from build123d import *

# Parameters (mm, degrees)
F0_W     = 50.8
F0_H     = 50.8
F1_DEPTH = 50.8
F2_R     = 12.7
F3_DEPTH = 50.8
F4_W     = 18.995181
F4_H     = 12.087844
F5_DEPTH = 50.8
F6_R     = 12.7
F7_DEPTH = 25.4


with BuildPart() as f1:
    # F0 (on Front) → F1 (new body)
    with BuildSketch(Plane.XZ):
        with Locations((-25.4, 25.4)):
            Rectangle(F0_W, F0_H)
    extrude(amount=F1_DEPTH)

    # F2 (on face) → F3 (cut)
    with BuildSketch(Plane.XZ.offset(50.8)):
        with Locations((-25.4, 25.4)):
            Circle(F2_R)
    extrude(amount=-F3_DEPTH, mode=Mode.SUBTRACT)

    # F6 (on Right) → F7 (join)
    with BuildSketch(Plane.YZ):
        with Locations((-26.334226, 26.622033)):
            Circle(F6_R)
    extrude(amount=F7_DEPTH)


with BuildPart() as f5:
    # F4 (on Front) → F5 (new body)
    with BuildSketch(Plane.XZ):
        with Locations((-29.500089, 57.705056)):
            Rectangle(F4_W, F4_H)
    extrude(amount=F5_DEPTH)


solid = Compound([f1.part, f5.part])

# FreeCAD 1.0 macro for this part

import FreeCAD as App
import Part
import Sketcher
from FreeCAD import Vector
Q = App.Units.Quantity

doc = App.newDocument("Part")
params = doc.addObject("Spreadsheet::Sheet", "Params")
for row, (alias, value) in enumerate([
    ("sketch1_width", "2 in"),
    ("pad1_length", "2 in"),
    ("sketch2_diameter", "1 in"),
    ("pocket1_length", "2 in"),
    ("sketch3_diameter", "1 in"),
    ("pad2_length", "1 in"),
    ("pad3_length", "2 in"),
], start=1):
    params.set(f"A{row}", alias)
    params.set(f"B{row}", "=" + value)
    params.setAlias(f"B{row}", alias)

body = doc.addObject("PartDesign::Body", "Body")

# Sketch on XZ plane
sketch1 = body.newObject("Sketcher::SketchObject", "Sketch")
sketch1.AttachmentSupport = (doc.getObject("XZ_Plane"), [""])
sketch1.MapMode = "FlatFace"
sketch1.addGeometry([
    Part.LineSegment(Vector(-51, 51, 0), Vector(-51, 0, 0)),
    Part.LineSegment(Vector(-51, 0, 0), Vector(0, 0, 0)),
    Part.LineSegment(Vector(0, 0, 0), Vector(0, 51, 0)),
    Part.LineSegment(Vector(0, 51, 0), Vector(-51, 51, 0)),
], False)
sketch1.addConstraint([
    Sketcher.Constraint("Coincident", 0, 2, 1, 1),
    Sketcher.Constraint("Coincident", 1, 2, 2, 1),
    Sketcher.Constraint("Coincident", 2, 2, 3, 1),
    Sketcher.Constraint("Coincident", 3, 2, 0, 1),
    Sketcher.Constraint("Vertical", 0),
    Sketcher.Constraint("Horizontal", 1),
    Sketcher.Constraint("Vertical", 2),
    Sketcher.Constraint("Horizontal", 3),
    Sketcher.Constraint("Coincident", 1, 2, -1, 1),
    Sketcher.Constraint("Equal", 3, 0),
    Sketcher.Constraint("DistanceX", 1, 1, 1, 2, Q("2 in")),
])
sketch1.setExpression("Constraints[10]", "Params.sketch1_width")
pad1 = body.newObject("PartDesign::Pad", "Pad")
pad1.Profile = sketch1
pad1.setExpression("Length", "Params.pad1_length")

# Sketch on XZ plane
sketch2 = body.newObject("Sketcher::SketchObject", "Sketch001")
sketch2.AttachmentSupport = (doc.getObject("XZ_Plane"), [""])
sketch2.MapMode = "FlatFace"
sketch2.AttachmentOffset = App.Placement(Vector(0, 0, 2 * 25.4), App.Rotation())
sketch2.addGeometry(Part.Circle(Vector(-25, 25, 0), Vector(0, 0, 1), 13), False)
sketch2.addConstraint([
    Sketcher.Constraint("Diameter", 0, Q("1 in")),
    Sketcher.Constraint("DistanceX", 0, 3, -1, 1, Q("1 in")),
    Sketcher.Constraint("DistanceY", -1, 1, 0, 3, Q("1 in")),
])
sketch2.setExpression("Constraints[0]", "Params.sketch2_diameter")
pocket1 = body.newObject("PartDesign::Pocket", "Pocket")
pocket1.Profile = sketch2
pocket1.setExpression("Length", "Params.pocket1_length")

# Sketch on YZ plane
sketch3 = body.newObject("Sketcher::SketchObject", "Sketch002")
sketch3.AttachmentSupport = (doc.getObject("YZ_Plane"), [""])
sketch3.MapMode = "FlatFace"
sketch3.addGeometry(Part.Circle(Vector(-26, 27, 0), Vector(0, 0, 1), 13), False)
sketch3.addConstraint([
    Sketcher.Constraint("Diameter", 0, Q("1 in")),
    Sketcher.Constraint("DistanceX", 0, 3, -1, 1, 26.334226),
    Sketcher.Constraint("DistanceY", -1, 1, 0, 3, 26.622033),
])
sketch3.setExpression("Constraints[0]", "Params.sketch3_diameter")
pad2 = body.newObject("PartDesign::Pad", "Pad001")
pad2.Profile = sketch3
pad2.setExpression("Length", "Params.pad2_length")
body2 = doc.addObject("PartDesign::Body", "Body001")

# Sketch on XZ plane
sketch4 = body2.newObject("Sketcher::SketchObject", "Sketch003")
sketch4.AttachmentSupport = (doc.getObject("XZ_Plane001"), [""])
sketch4.MapMode = "FlatFace"
sketch4.addGeometry([
    Part.LineSegment(Vector(-39, 64, 0), Vector(-39, 52, 0)),
    Part.LineSegment(Vector(-39, 52, 0), Vector(-20, 52, 0)),
    Part.LineSegment(Vector(-20, 52, 0), Vector(-20, 64, 0)),
    Part.LineSegment(Vector(-20, 64, 0), Vector(-39, 64, 0)),
], False)
sketch4.addConstraint([
    Sketcher.Constraint("Coincident", 0, 2, 1, 1),
    Sketcher.Constraint("Coincident", 1, 2, 2, 1),
    Sketcher.Constraint("Coincident", 2, 2, 3, 1),
    Sketcher.Constraint("Coincident", 3, 2, 0, 1),
    Sketcher.Constraint("Vertical", 0),
    Sketcher.Constraint("Horizontal", 1),
    Sketcher.Constraint("Vertical", 2),
    Sketcher.Constraint("Horizontal", 3),
    Sketcher.Constraint("DistanceX", 1, 2, -1, 1, Q("0.7874999 in")),
    Sketcher.Constraint("DistanceX", 1, 1, 1, 2, 18.995181),
    Sketcher.Constraint("DistanceY", 0, 2, 0, 1, 12.087844),
    Sketcher.Constraint("DistanceY", -1, 1, 0, 2, 51.661134),
])
pad3 = body2.newObject("PartDesign::Pad", "Pad002")
pad3.Profile = sketch4
pad3.setExpression("Length", "Params.pad3_length")

doc.recompute()
